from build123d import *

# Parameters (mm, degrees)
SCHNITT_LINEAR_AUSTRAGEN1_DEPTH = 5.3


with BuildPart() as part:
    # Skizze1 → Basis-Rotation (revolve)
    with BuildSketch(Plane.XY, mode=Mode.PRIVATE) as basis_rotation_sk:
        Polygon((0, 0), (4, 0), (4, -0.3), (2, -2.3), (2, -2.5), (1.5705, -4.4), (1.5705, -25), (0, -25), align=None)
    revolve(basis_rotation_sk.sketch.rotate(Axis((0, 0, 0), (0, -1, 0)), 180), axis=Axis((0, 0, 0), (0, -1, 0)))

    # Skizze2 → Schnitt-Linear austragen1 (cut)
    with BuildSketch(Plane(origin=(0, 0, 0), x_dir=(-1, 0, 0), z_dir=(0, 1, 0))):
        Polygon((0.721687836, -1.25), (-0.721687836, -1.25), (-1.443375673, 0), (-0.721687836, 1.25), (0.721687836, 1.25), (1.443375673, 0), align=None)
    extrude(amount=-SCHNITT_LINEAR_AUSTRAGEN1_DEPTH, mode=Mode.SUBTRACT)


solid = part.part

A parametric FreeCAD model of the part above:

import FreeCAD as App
import Part
import Sketcher
Q = App.Units.Quantity


def add_polygon(sketch, points):
    """Adds a closed chain of lines whose ends are joined by coincident constraints."""
    first, n = sketch.GeometryCount, len(points)
    for a, b in zip(points, points[1:] + points[:1]):
        sketch.addGeometry(Part.LineSegment(App.Vector(*a, 0), App.Vector(*b, 0)), False)
    for i in range(n):
        sketch.addConstraint(Sketcher.Constraint("Coincident", first + i, 2, first + (i + 1) % n, 1))

doc = App.newDocument("Part")
body = doc.addObject("PartDesign::Body", "Body")

sketch1 = body.newObject("Sketcher::SketchObject", "Sketch")
sketch1.AttachmentSupport = (doc.getObject("XY_Plane"), [""])
sketch1.MapMode = "FlatFace"
add_polygon(sketch1, [(4, 0), (0, 0), (0, -25), (1.5705, -25), (1.5705, -4.4), (2, -2.5), (2, -2.3), (4, -0.3)])
sketch1.addConstraint([
    Sketcher.Constraint("Horizontal", 0),
    Sketcher.Constraint("Vertical", 1),
    Sketcher.Constraint("Horizontal", 2),
    Sketcher.Constraint("Vertical", 3),
    Sketcher.Constraint("Vertical", 5),
    Sketcher.Constraint("Vertical", 7),
    Sketcher.Constraint("Coincident", 0, 2, -1, 1),
    Sketcher.Constraint("DistanceX", 0, 2, 0, 1, Q("4 mm")),
    Sketcher.Constraint("DistanceY", 1, 2, 1, 1, Q("25 mm")),
    Sketcher.Constraint("Angle", 6, Q("45 deg")),
    Sketcher.Constraint("DistanceY", 3, 1, 3, 2, Q("20.6 mm")),
    Sketcher.Constraint("DistanceY", 5, 1, 5, 2, Q("0.2 mm")),
    Sketcher.Constraint("DistanceY", 7, 1, 7, 2, Q("0.3 mm")),
    Sketcher.Constraint("DistanceX", -1, 1, 4, 2, Q("2 mm")),
    Sketcher.Constraint("DistanceX", 2, 1, 2, 2, Q("1.5705 mm")),
])
revolution = body.newObject("PartDesign::Revolution", "Revolution")
revolution.Profile = sketch1
revolution.ReferenceAxis = (sketch1, ["V_Axis"])
revolution.Angle = 360

sketch2 = body.newObject("Sketcher::SketchObject", "Sketch001")
sketch2.AttachmentSupport = (doc.getObject("XZ_Plane"), [""])
sketch2.MapMode = "FlatFace"
add_polygon(sketch2, [(0.721688, -1.25), (-0.721688, -1.25), (-1.443376, 0), (-0.721688, 1.25), (0.721688, 1.25), (1.443376, 0)])
sketch2.addConstraint([
    Sketcher.Constraint("Horizontal", 0),
    Sketcher.Constraint("Horizontal", 3),
    Sketcher.Constraint("Symmetric", 0, 2, 3, 2, -1, 1),
    Sketcher.Constraint("Symmetric", 1, 2, 4, 2, -1, 1),
    Sketcher.Constraint("PointOnObject", 1, 2, -1),
    Sketcher.Constraint("Parallel", 2, 5),
    Sketcher.Constraint("Vertical", 0, 2, 2, 2),
    Sketcher.Constraint("Angle", 1, Q("120 deg")),
    Sketcher.Constraint("DistanceY", 0, 2, 2, 2, Q("2.5 mm")),
    Sketcher.Constraint("DistanceX", 0, 2, 0, 1, Q("1.443376 mm")),
])
pocket1 = body.newObject("PartDesign::Pocket", "Pocket")
pocket1.Profile = sketch2
pocket1.Length = 5.3
pocket1.Reversed = True

doc.recompute()
